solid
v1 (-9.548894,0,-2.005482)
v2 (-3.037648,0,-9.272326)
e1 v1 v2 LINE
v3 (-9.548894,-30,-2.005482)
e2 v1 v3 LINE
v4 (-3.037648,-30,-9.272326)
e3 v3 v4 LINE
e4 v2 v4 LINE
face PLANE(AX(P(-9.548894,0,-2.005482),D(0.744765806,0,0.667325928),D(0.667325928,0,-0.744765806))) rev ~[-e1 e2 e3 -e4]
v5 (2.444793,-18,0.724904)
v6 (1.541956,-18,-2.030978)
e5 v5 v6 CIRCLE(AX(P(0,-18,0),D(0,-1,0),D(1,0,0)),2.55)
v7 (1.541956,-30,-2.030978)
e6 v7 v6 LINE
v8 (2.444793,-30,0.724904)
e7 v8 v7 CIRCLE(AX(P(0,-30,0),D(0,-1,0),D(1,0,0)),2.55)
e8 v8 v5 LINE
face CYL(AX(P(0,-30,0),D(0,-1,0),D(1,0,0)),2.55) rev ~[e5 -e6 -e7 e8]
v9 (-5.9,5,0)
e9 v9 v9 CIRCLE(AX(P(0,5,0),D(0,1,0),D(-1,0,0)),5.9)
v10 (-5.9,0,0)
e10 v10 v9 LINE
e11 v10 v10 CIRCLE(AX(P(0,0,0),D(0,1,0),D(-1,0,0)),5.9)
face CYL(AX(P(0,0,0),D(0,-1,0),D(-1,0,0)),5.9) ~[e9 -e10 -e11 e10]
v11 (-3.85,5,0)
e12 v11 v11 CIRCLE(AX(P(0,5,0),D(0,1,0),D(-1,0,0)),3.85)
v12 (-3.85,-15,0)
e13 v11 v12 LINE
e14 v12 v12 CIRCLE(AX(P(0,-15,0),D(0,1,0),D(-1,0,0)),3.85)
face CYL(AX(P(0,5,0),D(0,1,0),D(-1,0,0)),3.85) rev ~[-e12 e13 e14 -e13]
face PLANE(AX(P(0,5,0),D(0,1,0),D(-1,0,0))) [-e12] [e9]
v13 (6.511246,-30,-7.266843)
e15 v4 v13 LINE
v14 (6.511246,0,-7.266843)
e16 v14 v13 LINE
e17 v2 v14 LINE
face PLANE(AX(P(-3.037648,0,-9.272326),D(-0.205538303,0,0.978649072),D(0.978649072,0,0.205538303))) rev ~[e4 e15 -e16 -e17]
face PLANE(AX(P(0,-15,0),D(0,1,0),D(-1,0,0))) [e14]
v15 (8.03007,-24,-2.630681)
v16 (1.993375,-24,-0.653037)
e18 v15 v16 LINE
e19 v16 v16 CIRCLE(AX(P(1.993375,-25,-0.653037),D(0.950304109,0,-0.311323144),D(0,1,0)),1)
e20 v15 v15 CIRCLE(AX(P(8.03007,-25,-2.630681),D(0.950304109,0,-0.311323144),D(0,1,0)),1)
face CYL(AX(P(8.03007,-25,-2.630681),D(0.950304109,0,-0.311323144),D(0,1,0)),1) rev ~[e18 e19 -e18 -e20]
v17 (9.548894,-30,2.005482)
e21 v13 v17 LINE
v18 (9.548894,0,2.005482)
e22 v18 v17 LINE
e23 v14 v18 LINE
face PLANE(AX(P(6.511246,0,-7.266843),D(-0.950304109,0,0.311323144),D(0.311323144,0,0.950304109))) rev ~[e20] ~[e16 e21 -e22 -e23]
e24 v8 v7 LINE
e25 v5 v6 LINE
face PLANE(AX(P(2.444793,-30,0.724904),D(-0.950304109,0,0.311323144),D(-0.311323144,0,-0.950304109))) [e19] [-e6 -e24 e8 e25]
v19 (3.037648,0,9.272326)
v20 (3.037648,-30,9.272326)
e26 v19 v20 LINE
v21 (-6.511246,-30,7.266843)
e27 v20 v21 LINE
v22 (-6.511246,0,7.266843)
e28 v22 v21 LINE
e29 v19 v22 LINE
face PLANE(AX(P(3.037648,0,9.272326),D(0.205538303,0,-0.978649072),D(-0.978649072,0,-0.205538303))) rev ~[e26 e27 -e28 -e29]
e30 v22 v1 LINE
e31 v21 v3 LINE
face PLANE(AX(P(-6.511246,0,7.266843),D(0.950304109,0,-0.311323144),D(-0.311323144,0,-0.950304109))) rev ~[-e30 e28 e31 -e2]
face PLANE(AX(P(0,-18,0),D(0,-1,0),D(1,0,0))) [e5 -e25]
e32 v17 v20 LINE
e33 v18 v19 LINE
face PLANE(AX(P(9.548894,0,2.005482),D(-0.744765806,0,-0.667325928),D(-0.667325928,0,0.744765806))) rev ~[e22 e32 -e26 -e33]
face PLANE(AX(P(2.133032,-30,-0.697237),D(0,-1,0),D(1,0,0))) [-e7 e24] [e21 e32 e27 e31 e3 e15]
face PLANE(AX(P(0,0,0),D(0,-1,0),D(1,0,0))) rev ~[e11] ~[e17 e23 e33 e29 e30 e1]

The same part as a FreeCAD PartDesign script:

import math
import FreeCAD as App
import Part
import Sketcher
Q = App.Units.Quantity


def add_polygon(sketch, points):
    """Adds a closed chain of lines whose ends are joined by coincident constraints."""
    first, n = sketch.GeometryCount, len(points)
    for a, b in zip(points, points[1:] + points[:1]):
        sketch.addGeometry(Part.LineSegment(App.Vector(*a, 0), App.Vector(*b, 0)), False)
    for i in range(n):
        sketch.addConstraint(Sketcher.Constraint("Coincident", first + i, 2, first + (i + 1) % n, 1))

doc = App.newDocument("Part")
body = doc.addObject("PartDesign::Body", "Body")

sketch1 = body.newObject("Sketcher::SketchObject", "Sketch")
sketch1.AttachmentSupport = (doc.getObject("XZ_Plane"), [""])
sketch1.MapMode = "FlatFace"
add_polygon(sketch1, [(7, -7), (10, 2), (3, 9), (-7, 7), (-10, -2), (-3, -9)])
sketch1.addConstraint(Sketcher.Constraint("Symmetric", 0, 2, 3, 2, -1, 1))
sketch1.addConstraint(Sketcher.Constraint("Symmetric", 1, 2, 4, 2, -1, 1))
sketch1.addConstraint(Sketcher.Constraint("Symmetric", 2, 2, 5, 2, -1, 1))
sketch1.addConstraint(Sketcher.Constraint("Equal", 0, 1))
sketch1.addConstraint(Sketcher.Constraint("Equal", 1, 2))
sketch1.addConstraint(Sketcher.Constraint("Distance", 0, Q("9.75722 mm")))
sketch1.addConstraint(Sketcher.Constraint("DistanceX", -1, 1, 1, 2, Q("3.037648 mm")))
sketch1.addConstraint(Sketcher.Constraint("DistanceX", 2, 2, 0, 2, Q("16.060139 mm")))
sketch1.addConstraint(Sketcher.Constraint("DistanceY", 0, 2, 2, 2, Q("5.261361 mm")))
pad1 = body.newObject("PartDesign::Pad", "Pad")
pad1.Profile = sketch1
pad1.Length = 30

sketch2 = body.newObject("Sketcher::SketchObject", "Sketch001")
sketch2.AttachmentSupport = (doc.getObject("XZ_Plane"), [""])
sketch2.MapMode = "FlatFace"
sketch2.addGeometry(Part.Circle(App.Vector(0, 0, 0), App.Vector(0, 0, 1), 6), False)
sketch2.addConstraint(Sketcher.Constraint("Coincident", 0, 3, -1, 1))
sketch2.addConstraint(Sketcher.Constraint("Diameter", 0, Q("11.8 mm")))
pad2 = body.newObject("PartDesign::Pad", "Pad001")
pad2.Profile = sketch2
pad2.Length = 5
pad2.Reversed = True

sketch3 = body.newObject("Sketcher::SketchObject", "Sketch002")
sketch3.AttachmentSupport = (doc.getObject("XZ_Plane"), [""])
sketch3.MapMode = "FlatFace"
sketch3.AttachmentOffset = App.Placement(App.Vector(0, 0, -5), App.Rotation())
sketch3.addGeometry(Part.Circle(App.Vector(0, 0, 0), App.Vector(0, 0, 1), 3.9), False)
sketch3.addConstraint(Sketcher.Constraint("Coincident", 0, 3, -1, 1))
sketch3.addConstraint(Sketcher.Constraint("Diameter", 0, Q("7.7 mm")))
pocket1 = body.newObject("PartDesign::Pocket", "Pocket")
pocket1.Profile = sketch3
pocket1.Length = 20
pocket1.Reversed = True

sketch4 = body.newObject("Sketcher::SketchObject", "Sketch003")
sketch4.AttachmentSupport = (doc.getObject("XZ_Plane"), [""])
sketch4.MapMode = "FlatFace"
sketch4.AttachmentOffset = App.Placement(App.Vector(0, 0, 30), App.Rotation())
sketch4.addGeometry(Part.Circle(App.Vector(0, 0, 0), App.Vector(0, 0, 1), 2.5), False)
sketch4.addConstraint(Sketcher.Constraint("Coincident", 0, 3, -1, 1))
sketch4.addConstraint(Sketcher.Constraint("Diameter", 0, Q("5.1 mm")))
pocket2 = body.newObject("PartDesign::Pocket", "Pocket001")
pocket2.Profile = sketch4
pocket2.Length = 12

sketch5 = body.newObject("Sketcher::SketchObject", "Sketch004")
sketch5.AttachmentSupport = (doc.getObject("XZ_Plane"), [""])
sketch5.MapMode = "FlatFace"
sketch5.AttachmentOffset = App.Placement(App.Vector(0, 0, 30), App.Rotation())
sketch5.addGeometry(Part.LineSegment(App.Vector(2.4, 0.7, 0), App.Vector(1.5, -2, 0)), False)
sketch5.addGeometry(Part.ArcOfCircle(Part.Circle(App.Vector(0, 0, 0), App.Vector(0, 0, 1), 2.5), math.radians(-53), math.radians(0)), False)
sketch5.addGeometry(Part.ArcOfCircle(Part.Circle(App.Vector(0, 0, 0), App.Vector(0, 0, 1), 2.6), math.radians(0), math.radians(16.52)), False)
sketch5.addConstraint(Sketcher.Constraint("Coincident", 0, 2, 1, 1))
sketch5.addConstraint(Sketcher.Constraint("Tangent", 1, 2, 2, 1))
sketch5.addConstraint(Sketcher.Constraint("Coincident", 2, 2, 0, 1))
sketch5.addConstraint(Sketcher.Constraint("Coincident", 1, 3, -1, 1))
sketch5.addConstraint(Sketcher.Constraint("Equal", 1, 2))
sketch5.addConstraint(Sketcher.Constraint("PointOnObject", 1, 2, -1))
sketch5.addConstraint(Sketcher.Constraint("Radius", 1, Q("2.55 mm")))
sketch5.addConstraint(Sketcher.Constraint("Distance", 0, Q("2.9 mm")))
sketch5.addConstraint(Sketcher.Constraint("DistanceY", 0, 2, 2, 2, Q("2.755882 mm")))
pad3 = body.newObject("PartDesign::Pad", "Pad002")
pad3.Profile = sketch5
pad3.Type = "UpToLast"
pad3.Reversed = True

sketch6 = body.newObject("Sketcher::SketchObject", "Sketch005")
sketch6.Placement = App.Placement(App.Vector(8.03007, 0, -2.630681), App.Rotation(App.Vector(0, 1, 0), App.Vector(0.311323144, 0, 0.950304109), App.Vector(0.950304109, 0, -0.311323144), "ZXY"))
sketch6.addGeometry(Part.Circle(App.Vector(-25, 0, 0), App.Vector(0, 0, 1), 1), False)
sketch6.addConstraint(Sketcher.Constraint("PointOnObject", 0, 3, -1))
sketch6.addConstraint(Sketcher.Constraint("Diameter", 0, Q("2 mm")))
sketch6.addConstraint(Sketcher.Constraint("DistanceX", 0, 3, -1, 1, Q("25 mm")))
pocket3 = body.newObject("PartDesign::Pocket", "Pocket002")
pocket3.Profile = sketch6
pocket3.Length = 6.352382

doc.recompute()
